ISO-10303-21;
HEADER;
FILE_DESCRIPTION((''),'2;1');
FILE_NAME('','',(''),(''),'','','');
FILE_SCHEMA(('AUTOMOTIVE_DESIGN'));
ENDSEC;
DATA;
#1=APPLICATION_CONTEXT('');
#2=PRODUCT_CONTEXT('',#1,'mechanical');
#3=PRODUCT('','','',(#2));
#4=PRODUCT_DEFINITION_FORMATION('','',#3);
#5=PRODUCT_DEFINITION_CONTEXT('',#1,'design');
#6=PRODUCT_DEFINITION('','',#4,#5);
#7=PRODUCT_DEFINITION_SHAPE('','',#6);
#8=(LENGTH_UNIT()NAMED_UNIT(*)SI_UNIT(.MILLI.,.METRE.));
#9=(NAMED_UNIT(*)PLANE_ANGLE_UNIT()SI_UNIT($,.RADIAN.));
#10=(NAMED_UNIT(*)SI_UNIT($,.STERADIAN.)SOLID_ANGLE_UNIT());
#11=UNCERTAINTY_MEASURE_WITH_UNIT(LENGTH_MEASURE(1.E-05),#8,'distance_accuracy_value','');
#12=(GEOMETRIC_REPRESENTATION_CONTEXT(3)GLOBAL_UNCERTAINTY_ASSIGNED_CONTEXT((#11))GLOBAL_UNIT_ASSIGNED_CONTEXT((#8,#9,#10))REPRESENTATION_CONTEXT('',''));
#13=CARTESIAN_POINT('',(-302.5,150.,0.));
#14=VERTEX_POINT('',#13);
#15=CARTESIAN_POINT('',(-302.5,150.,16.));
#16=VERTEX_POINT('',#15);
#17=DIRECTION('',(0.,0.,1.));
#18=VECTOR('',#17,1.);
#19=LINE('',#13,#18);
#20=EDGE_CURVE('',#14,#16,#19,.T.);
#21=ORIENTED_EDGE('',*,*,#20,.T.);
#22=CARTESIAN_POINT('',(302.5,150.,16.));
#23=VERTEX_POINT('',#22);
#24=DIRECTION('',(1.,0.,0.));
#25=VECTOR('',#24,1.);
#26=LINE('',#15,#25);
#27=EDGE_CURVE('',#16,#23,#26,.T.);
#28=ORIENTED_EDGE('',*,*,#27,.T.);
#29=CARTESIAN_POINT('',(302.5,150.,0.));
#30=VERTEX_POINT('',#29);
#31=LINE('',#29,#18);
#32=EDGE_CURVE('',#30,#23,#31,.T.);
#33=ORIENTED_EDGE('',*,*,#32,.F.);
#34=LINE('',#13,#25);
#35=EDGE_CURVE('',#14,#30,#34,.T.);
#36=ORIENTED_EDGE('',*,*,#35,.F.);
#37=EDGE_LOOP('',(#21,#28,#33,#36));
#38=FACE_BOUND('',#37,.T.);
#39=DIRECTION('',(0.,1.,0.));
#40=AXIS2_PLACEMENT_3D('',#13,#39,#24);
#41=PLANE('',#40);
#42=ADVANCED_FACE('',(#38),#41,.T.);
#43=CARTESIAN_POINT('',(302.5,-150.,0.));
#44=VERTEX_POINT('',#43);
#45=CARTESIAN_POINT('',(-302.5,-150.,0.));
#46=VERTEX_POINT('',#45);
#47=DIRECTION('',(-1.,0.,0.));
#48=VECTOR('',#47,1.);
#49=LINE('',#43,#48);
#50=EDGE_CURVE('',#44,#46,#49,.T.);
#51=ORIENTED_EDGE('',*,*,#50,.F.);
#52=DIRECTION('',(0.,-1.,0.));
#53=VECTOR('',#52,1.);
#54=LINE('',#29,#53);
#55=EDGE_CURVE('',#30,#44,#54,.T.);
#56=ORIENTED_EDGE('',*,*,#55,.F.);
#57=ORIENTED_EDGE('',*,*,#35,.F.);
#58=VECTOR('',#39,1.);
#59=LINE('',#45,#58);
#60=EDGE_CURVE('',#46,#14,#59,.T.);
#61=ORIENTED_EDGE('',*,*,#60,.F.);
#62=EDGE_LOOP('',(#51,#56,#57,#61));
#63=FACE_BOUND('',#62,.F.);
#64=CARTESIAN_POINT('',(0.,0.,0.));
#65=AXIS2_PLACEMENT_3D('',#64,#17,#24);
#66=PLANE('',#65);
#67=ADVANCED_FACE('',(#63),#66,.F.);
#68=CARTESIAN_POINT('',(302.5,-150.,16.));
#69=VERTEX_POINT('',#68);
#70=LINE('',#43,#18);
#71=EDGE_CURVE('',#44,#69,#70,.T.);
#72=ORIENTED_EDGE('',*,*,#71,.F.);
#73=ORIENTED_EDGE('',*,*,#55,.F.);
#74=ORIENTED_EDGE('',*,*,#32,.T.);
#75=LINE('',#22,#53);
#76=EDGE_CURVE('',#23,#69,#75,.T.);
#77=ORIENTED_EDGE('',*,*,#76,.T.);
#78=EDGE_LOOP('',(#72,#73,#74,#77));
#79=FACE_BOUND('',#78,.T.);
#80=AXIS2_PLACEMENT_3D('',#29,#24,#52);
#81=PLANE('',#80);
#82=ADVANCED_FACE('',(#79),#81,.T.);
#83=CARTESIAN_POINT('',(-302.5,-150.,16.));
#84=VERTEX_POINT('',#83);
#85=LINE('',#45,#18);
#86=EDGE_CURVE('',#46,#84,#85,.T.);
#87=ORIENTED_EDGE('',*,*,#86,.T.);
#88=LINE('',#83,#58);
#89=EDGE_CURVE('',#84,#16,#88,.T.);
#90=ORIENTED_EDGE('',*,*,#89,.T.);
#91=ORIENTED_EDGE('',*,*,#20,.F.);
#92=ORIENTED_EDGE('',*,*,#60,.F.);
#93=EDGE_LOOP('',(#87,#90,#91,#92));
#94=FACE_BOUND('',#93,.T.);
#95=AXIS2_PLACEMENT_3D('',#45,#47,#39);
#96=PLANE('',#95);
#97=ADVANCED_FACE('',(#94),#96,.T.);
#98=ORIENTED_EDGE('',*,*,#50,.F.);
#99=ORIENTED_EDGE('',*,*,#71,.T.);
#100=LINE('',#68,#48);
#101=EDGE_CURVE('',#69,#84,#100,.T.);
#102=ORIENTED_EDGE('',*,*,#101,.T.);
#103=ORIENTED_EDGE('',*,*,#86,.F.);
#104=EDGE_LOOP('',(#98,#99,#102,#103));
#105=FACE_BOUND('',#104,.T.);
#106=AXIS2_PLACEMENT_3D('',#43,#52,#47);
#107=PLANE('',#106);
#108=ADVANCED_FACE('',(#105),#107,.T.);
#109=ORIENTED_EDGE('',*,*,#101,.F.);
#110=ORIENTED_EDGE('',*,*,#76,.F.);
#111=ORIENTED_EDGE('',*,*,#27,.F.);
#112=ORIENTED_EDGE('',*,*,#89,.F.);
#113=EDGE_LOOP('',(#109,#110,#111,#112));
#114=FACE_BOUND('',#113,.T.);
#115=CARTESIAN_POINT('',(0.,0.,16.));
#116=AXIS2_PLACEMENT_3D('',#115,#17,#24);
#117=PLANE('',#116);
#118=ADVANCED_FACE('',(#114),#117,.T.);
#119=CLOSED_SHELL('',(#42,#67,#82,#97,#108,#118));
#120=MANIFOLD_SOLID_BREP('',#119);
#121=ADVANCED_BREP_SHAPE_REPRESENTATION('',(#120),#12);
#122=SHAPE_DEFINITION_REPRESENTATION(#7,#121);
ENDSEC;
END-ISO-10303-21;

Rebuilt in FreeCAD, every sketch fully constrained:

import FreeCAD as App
import Part
import Sketcher
from FreeCAD import Vector
Q = App.Units.Quantity


def add_polygon(sketch, points):
    """Adds a closed chain of lines whose ends are joined by coincident constraints."""
    first, n = sketch.GeometryCount, len(points)
    for a, b in zip(points, points[1:] + points[:1]):
        sketch.addGeometry(Part.LineSegment(App.Vector(*a, 0), App.Vector(*b, 0)), False)
    for i in range(n):
        sketch.addConstraint(Sketcher.Constraint("Coincident", first + i, 2, first + (i + 1) % n, 1))

doc = App.newDocument("Part")
params = doc.addObject("Spreadsheet::Sheet", "Params")
for row, (alias, value) in enumerate([
    ("sketch1_width", "605 mm"),
    ("sketch1_height", "300 mm"),
    ("pad1_length", "16 mm"),
], start=1):
    params.set(f"A{row}", alias)
    params.set(f"B{row}", "=" + value)
    params.setAlias(f"B{row}", alias)

body = doc.addObject("PartDesign::Body", "Body")

sketch1 = body.newObject("Sketcher::SketchObject", "Sketch")
sketch1.AttachmentSupport = (doc.getObject("XY_Plane"), [""])
sketch1.MapMode = "FlatFace"
add_polygon(sketch1, [(302, 150), (-302, 150), (-302, -150), (302, -150)])
sketch1.addConstraint([
    Sketcher.Constraint("Horizontal", 0),
    Sketcher.Constraint("Vertical", 1),
    Sketcher.Constraint("Horizontal", 2),
    Sketcher.Constraint("Vertical", 3),
    Sketcher.Constraint("Symmetric", 0, 2, 2, 2, -1, 1),
    Sketcher.Constraint("DistanceX", 0, 2, 0, 1, Q("605 mm")),
    Sketcher.Constraint("DistanceY", 1, 2, 1, 1, Q("300 mm")),
])
sketch1.setExpression("Constraints[9]", "Params.sketch1_width")
sketch1.setExpression("Constraints[10]", "Params.sketch1_height")
pad1 = body.newObject("PartDesign::Pad", "Pad")
pad1.Profile = sketch1
pad1.setExpression("Length", "Params.pad1_length")

doc.recompute()
